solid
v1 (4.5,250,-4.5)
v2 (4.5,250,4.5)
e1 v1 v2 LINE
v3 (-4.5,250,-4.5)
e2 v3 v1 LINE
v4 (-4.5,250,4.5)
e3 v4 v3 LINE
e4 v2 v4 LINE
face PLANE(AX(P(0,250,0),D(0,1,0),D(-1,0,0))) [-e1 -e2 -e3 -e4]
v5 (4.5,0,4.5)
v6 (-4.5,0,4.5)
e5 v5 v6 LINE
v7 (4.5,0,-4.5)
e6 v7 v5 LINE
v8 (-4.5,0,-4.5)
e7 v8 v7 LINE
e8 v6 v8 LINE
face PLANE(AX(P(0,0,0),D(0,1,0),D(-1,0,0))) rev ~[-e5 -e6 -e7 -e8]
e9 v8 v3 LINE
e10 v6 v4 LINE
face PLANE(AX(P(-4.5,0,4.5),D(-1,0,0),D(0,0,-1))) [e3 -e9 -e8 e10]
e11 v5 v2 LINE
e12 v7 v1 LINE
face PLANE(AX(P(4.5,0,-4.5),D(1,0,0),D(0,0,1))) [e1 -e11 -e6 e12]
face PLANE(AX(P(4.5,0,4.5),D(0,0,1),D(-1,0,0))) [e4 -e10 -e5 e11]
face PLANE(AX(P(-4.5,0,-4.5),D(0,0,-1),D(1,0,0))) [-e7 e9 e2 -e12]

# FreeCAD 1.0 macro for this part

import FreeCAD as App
import Part
import Sketcher


def add_polygon(sketch, points):
    """Adds a closed chain of lines whose ends are joined by coincident constraints."""
    first, n = sketch.GeometryCount, len(points)
    for a, b in zip(points, points[1:] + points[:1]):
        sketch.addGeometry(Part.LineSegment(App.Vector(*a, 0), App.Vector(*b, 0)), False)
    for i in range(n):
        sketch.addConstraint(Sketcher.Constraint("Coincident", first + i, 2, first + (i + 1) % n, 1))

doc = App.newDocument("Part")
body = doc.addObject("PartDesign::Body", "Body")

# Sketch on XZ plane
sketch1 = body.newObject("Sketcher::SketchObject", "Sketch")
sketch1.AttachmentSupport = (doc.getObject("XZ_Plane"), [""])
sketch1.MapMode = "FlatFace"
add_polygon(sketch1, [(-4, 4), (4, 4), (4, -4), (-4, -4)])  # lines 0-3
sketch1.addConstraint([
    Sketcher.Constraint("Horizontal", 0),
    Sketcher.Constraint("Vertical", 1),
    Sketcher.Constraint("Horizontal", 2),
    Sketcher.Constraint("Vertical", 3),
    Sketcher.Constraint("Symmetric", 0, 2, 2, 2, -1, 1),
    Sketcher.Constraint("Equal", 2, 1),
    Sketcher.Constraint("DistanceX", 0, 1, 0, 2, 9.0),
])
pad1 = body.newObject("PartDesign::Pad", "Pad")
pad1.Profile = sketch1
pad1.Length = 250
pad1.Reversed = True

doc.recompute()
